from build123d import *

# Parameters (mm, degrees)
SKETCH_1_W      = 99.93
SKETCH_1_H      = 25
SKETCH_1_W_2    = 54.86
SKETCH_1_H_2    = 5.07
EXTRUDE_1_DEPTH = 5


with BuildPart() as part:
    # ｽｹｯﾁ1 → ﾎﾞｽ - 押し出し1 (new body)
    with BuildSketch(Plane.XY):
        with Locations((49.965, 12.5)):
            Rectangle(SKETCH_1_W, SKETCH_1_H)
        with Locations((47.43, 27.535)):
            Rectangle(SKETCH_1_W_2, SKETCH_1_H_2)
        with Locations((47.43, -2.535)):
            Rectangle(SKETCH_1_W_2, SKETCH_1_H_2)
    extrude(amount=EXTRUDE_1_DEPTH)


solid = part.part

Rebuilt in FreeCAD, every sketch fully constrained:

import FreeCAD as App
import Part
import Sketcher
from FreeCAD import Vector

doc = App.newDocument("Part")
body = doc.addObject("PartDesign::Body", "Body")

# Sketch on XY plane
sketch1 = body.newObject("Sketcher::SketchObject", "Sketch")
sketch1.AttachmentSupport = (doc.getObject("XY_Plane"), [""])
sketch1.MapMode = "FlatFace"
sketch1.addGeometry(Part.LineSegment(Vector(0, 25, 0), Vector(0, 0, 0)), False)
sketch1.addGeometry(Part.LineSegment(Vector(0, 0, 0), Vector(20, 0, 0)), False)
sketch1.addGeometry(Part.LineSegment(Vector(20, 0, 0), Vector(20, -5, 0)), False)
sketch1.addGeometry(Part.LineSegment(Vector(20, -5, 0), Vector(75, -5, 0)), False)
sketch1.addGeometry(Part.LineSegment(Vector(75, -5, 0), Vector(75, 0, 0)), False)
sketch1.addGeometry(Part.LineSegment(Vector(75, 0, 0), Vector(100, 0, 0)), False)
sketch1.addGeometry(Part.LineSegment(Vector(100, 0, 0), Vector(100, 25, 0)), False)
sketch1.addGeometry(Part.LineSegment(Vector(100, 25, 0), Vector(75, 25, 0)), False)
sketch1.addGeometry(Part.LineSegment(Vector(75, 25, 0), Vector(75, 30, 0)), False)
sketch1.addGeometry(Part.LineSegment(Vector(75, 30, 0), Vector(20, 30, 0)), False)
sketch1.addGeometry(Part.LineSegment(Vector(20, 30, 0), Vector(20, 25, 0)), False)
sketch1.addGeometry(Part.LineSegment(Vector(20, 25, 0), Vector(0, 25, 0)), False)
sketch1.addConstraint(Sketcher.Constraint("Coincident", 0, 2, 1, 1))
sketch1.addConstraint(Sketcher.Constraint("Coincident", 1, 2, 2, 1))
sketch1.addConstraint(Sketcher.Constraint("Coincident", 2, 2, 3, 1))
sketch1.addConstraint(Sketcher.Constraint("Coincident", 3, 2, 4, 1))
sketch1.addConstraint(Sketcher.Constraint("Coincident", 4, 2, 5, 1))
sketch1.addConstraint(Sketcher.Constraint("Coincident", 5, 2, 6, 1))
sketch1.addConstraint(Sketcher.Constraint("Coincident", 6, 2, 7, 1))
sketch1.addConstraint(Sketcher.Constraint("Coincident", 7, 2, 8, 1))
sketch1.addConstraint(Sketcher.Constraint("Coincident", 8, 2, 9, 1))
sketch1.addConstraint(Sketcher.Constraint("Coincident", 9, 2, 10, 1))
sketch1.addConstraint(Sketcher.Constraint("Coincident", 10, 2, 11, 1))
sketch1.addConstraint(Sketcher.Constraint("Coincident", 11, 2, 0, 1))
sketch1.addConstraint(Sketcher.Constraint("Vertical", 0))
sketch1.addConstraint(Sketcher.Constraint("Horizontal", 1))
sketch1.addConstraint(Sketcher.Constraint("Vertical", 2))
sketch1.addConstraint(Sketcher.Constraint("Horizontal", 3))
sketch1.addConstraint(Sketcher.Constraint("Vertical", 4))
sketch1.addConstraint(Sketcher.Constraint("Horizontal", 5))
sketch1.addConstraint(Sketcher.Constraint("Vertical", 6))
sketch1.addConstraint(Sketcher.Constraint("Horizontal", 7))
sketch1.addConstraint(Sketcher.Constraint("Vertical", 8))
sketch1.addConstraint(Sketcher.Constraint("Horizontal", 9))
sketch1.addConstraint(Sketcher.Constraint("Vertical", 10))
sketch1.addConstraint(Sketcher.Constraint("Horizontal", 11))
sketch1.addConstraint(Sketcher.Constraint("Coincident", 0, 2, -1, 1))
sketch1.addConstraint(Sketcher.Constraint("PointOnObject", 4, 2, -1))
sketch1.addConstraint(Sketcher.Constraint("Horizontal", 7, 2, 10, 2))
sketch1.addConstraint(Sketcher.Constraint("Vertical", 4, 2, 7, 2))
sketch1.addConstraint(Sketcher.Constraint("Vertical", 2, 2, 9, 2))
sketch1.addConstraint(Sketcher.Constraint("Equal", 4, 8))
sketch1.addConstraint(Sketcher.Constraint("DistanceX", 1, 1, 1, 2, 20.0))
sketch1.addConstraint(Sketcher.Constraint("DistanceY", 0, 2, 0, 1, 25.0))
sketch1.addConstraint(Sketcher.Constraint("DistanceX", 3, 1, 3, 2, 54.86))
sketch1.addConstraint(Sketcher.Constraint("DistanceX", 5, 1, 5, 2, 25.07))
sketch1.addConstraint(Sketcher.Constraint("DistanceY", 2, 2, 2, 1, 5.07))
pad1 = body.newObject("PartDesign::Pad", "Pad")
pad1.Profile = sketch1
pad1.Length = 5

doc.recompute()
